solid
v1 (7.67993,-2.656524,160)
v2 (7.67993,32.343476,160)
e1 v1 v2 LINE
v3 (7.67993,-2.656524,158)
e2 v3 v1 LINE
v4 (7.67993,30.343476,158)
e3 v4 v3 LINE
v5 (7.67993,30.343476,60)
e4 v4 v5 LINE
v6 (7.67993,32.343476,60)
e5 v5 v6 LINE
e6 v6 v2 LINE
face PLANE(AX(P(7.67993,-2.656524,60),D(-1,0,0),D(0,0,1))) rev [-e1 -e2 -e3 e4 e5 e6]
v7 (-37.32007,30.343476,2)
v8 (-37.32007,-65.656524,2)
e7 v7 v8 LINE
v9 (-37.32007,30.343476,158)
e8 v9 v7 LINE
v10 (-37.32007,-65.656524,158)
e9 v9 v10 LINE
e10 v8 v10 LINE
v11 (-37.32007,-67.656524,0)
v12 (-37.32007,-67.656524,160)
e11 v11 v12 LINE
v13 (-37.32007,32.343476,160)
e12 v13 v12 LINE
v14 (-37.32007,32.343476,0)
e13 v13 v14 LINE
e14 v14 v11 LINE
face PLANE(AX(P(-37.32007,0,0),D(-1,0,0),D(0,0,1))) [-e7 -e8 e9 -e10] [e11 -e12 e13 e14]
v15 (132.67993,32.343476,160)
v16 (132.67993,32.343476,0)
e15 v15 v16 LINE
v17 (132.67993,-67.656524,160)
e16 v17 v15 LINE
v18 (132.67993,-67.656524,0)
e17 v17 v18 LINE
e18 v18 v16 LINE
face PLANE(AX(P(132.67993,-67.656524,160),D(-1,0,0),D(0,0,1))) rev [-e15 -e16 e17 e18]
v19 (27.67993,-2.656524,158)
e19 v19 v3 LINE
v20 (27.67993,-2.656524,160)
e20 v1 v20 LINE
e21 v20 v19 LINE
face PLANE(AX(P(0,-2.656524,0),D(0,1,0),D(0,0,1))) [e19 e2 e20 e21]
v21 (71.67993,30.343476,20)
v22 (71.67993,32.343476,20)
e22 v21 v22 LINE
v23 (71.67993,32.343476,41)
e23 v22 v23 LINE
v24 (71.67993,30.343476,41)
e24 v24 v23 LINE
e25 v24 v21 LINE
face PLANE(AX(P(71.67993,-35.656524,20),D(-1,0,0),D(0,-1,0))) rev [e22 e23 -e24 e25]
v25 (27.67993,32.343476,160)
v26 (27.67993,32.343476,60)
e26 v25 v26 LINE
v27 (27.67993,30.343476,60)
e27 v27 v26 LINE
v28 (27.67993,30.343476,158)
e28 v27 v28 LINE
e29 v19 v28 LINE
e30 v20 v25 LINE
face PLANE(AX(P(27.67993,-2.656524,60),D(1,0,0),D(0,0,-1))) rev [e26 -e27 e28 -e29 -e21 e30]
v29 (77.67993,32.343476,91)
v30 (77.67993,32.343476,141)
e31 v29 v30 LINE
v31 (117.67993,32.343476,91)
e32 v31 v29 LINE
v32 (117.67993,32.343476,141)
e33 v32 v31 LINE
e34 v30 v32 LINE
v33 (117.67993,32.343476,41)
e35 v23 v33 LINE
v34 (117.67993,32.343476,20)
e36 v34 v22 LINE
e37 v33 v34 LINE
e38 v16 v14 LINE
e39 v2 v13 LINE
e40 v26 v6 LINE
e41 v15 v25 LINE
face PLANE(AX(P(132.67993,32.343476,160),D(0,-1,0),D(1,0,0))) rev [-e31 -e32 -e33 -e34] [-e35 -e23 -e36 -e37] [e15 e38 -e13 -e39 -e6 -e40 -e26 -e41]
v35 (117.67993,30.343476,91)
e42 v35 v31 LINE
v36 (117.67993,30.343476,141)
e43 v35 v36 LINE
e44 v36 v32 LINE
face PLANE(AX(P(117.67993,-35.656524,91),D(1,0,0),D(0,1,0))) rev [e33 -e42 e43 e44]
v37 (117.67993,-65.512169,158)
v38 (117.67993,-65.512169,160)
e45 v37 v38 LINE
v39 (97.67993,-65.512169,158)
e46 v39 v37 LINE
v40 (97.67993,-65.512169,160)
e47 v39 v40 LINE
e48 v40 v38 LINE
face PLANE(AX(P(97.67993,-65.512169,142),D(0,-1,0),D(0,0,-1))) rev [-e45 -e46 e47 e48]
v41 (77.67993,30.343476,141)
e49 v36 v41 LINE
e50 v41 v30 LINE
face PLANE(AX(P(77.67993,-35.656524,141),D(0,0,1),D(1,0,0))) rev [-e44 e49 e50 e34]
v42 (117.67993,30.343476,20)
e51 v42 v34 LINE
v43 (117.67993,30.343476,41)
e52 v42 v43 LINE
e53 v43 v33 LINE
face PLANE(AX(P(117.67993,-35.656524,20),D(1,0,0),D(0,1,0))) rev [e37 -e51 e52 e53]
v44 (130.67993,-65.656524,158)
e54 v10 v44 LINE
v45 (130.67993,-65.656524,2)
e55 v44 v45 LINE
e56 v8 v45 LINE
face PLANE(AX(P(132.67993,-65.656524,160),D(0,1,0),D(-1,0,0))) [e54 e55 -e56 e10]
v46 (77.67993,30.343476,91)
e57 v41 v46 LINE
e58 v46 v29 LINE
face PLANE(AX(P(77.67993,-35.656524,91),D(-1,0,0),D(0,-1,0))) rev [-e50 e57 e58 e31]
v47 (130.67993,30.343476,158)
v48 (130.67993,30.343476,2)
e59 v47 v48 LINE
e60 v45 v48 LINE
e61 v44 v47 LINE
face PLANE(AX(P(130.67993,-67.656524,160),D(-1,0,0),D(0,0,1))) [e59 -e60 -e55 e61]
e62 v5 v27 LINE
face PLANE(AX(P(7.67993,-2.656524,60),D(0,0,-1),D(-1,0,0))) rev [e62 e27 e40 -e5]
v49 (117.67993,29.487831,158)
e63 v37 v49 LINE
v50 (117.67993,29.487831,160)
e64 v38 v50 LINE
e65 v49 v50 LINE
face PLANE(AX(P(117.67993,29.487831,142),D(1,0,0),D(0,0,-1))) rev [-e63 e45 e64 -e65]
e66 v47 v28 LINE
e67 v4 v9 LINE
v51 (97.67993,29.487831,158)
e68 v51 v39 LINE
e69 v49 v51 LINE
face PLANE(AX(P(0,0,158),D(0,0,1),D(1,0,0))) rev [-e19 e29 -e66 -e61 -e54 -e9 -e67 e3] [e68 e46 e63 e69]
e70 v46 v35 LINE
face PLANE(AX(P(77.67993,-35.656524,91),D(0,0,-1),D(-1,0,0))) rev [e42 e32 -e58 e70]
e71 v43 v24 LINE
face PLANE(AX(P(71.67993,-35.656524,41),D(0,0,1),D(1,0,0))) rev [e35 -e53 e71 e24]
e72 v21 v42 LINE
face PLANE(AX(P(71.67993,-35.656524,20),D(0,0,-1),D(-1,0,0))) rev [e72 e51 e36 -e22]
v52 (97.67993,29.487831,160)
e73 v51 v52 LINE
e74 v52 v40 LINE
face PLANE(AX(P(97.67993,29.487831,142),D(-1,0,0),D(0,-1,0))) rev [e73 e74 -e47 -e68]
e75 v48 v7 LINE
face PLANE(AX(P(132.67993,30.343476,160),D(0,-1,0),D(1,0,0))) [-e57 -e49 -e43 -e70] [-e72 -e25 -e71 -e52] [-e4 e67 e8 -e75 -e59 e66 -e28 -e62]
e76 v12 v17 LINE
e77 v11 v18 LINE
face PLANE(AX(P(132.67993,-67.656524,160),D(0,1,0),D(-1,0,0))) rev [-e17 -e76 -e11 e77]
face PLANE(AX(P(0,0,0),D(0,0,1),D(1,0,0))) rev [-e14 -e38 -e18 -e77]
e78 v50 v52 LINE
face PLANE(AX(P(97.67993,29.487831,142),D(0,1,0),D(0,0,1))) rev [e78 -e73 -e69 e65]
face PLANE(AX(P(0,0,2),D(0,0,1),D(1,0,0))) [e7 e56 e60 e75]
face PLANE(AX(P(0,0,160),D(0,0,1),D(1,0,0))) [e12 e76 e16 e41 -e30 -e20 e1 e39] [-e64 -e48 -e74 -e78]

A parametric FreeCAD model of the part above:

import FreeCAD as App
import Part
import Sketcher
from FreeCAD import Vector


def faces_at(feature, points):
    """Names of the faces that lie closest to the given points."""
    faces = feature.Shape.Faces
    near = lambda p: min(range(len(faces)), key=lambda i: faces[i].distToShape(Part.Vertex(*p))[0])
    return sorted({f"Face{near(p) + 1}" for p in points})


def add_polygon(sketch, points):
    """Adds a closed chain of lines whose ends are joined by coincident constraints."""
    first, n = sketch.GeometryCount, len(points)
    for a, b in zip(points, points[1:] + points[:1]):
        sketch.addGeometry(Part.LineSegment(App.Vector(*a, 0), App.Vector(*b, 0)), False)
    for i in range(n):
        sketch.addConstraint(Sketcher.Constraint("Coincident", first + i, 2, first + (i + 1) % n, 1))

doc = App.newDocument("Part")
params = doc.addObject("Spreadsheet::Sheet", "Params")
for row, (alias, value) in enumerate([
    ("sketch1_width", "200 mm"),
    ("sketch1_height", "100 mm"),
    ("pad1_length", "160 mm"),
    ("thickness_wall", "2 mm"),
    ("sketch2_width", "46 mm"),
    ("sketch2_width2", "40 mm"),
    ("sketch2_height", "21 mm"),
    ("sketch2_height2", "50 mm"),
    ("pocket1_length", "68 mm"),
    ("sketch3_width", "20 mm"),
    ("sketch3_height", "95 mm"),
    ("pocket2_length", "18 mm"),
    ("sketch4_width", "20 mm"),
    ("sketch4_height", "100 mm"),
    ("pocket3_length", "35 mm"),
    ("pocket4_length", "30 mm"),
], start=1):
    params.set(f"A{row}", alias)
    params.set(f"B{row}", "=" + value)
    params.setAlias(f"B{row}", alias)

body = doc.addObject("PartDesign::Body", "Body")

sketch1 = body.newObject("Sketcher::SketchObject", "Sketch")
sketch1.AttachmentSupport = (doc.getObject("XY_Plane"), [""])
sketch1.MapMode = "FlatFace"
add_polygon(sketch1, [(-67.32007, 32.343476), (-67.32007, -67.656524), (132.67993, -67.656524), (132.67993, 32.343476)])
sketch1.addConstraint(Sketcher.Constraint("Vertical", 0))
sketch1.addConstraint(Sketcher.Constraint("Horizontal", 1))
sketch1.addConstraint(Sketcher.Constraint("Vertical", 2))
sketch1.addConstraint(Sketcher.Constraint("Horizontal", 3))
sketch1.addConstraint(Sketcher.Constraint("DistanceX", 1, 1, 1, 2, 200.0))
sketch1.addConstraint(Sketcher.Constraint("DistanceY", 0, 2, 0, 1, 100.0))
sketch1.addConstraint(Sketcher.Constraint("DistanceX", 0, 2, -1, 1, 67.32007))
sketch1.addConstraint(Sketcher.Constraint("DistanceY", 0, 2, -1, 1, 67.656524))
sketch1.setExpression("Constraints[8]", "Params.sketch1_width")
sketch1.setExpression("Constraints[9]", "Params.sketch1_height")
pad1 = body.newObject("PartDesign::Pad", "Pad")
pad1.Profile = sketch1
pad1.setExpression("Length", "Params.pad1_length")
doc.recompute()

thickness = body.newObject("PartDesign::Thickness", "Thickness")
thickness.Base = (pad1, faces_at(pad1, [(-67.32, -17.657, 80)]))
thickness.setExpression("Value", "Params.thickness_wall")
thickness.Reversed = True
thickness.Join = "Intersection"

sketch2 = body.newObject("Sketcher::SketchObject", "Sketch001")
sketch2.AttachmentSupport = (doc.getObject("XZ_Plane"), [""])
sketch2.MapMode = "FlatFace"
sketch2.AttachmentOffset = App.Placement(Vector(0, 0, -32.343476), App.Rotation())
add_polygon(sketch2, [(71.67993, 20), (71.67993, 41), (117.67993, 41), (117.67993, 20)])
add_polygon(sketch2, [(77.67993, 91), (77.67993, 141), (117.67993, 141), (117.67993, 91)])
sketch2.addConstraint(Sketcher.Constraint("Vertical", 0))
sketch2.addConstraint(Sketcher.Constraint("Horizontal", 1))
sketch2.addConstraint(Sketcher.Constraint("Vertical", 2))
sketch2.addConstraint(Sketcher.Constraint("Horizontal", 3))
sketch2.addConstraint(Sketcher.Constraint("Vertical", 4))
sketch2.addConstraint(Sketcher.Constraint("Horizontal", 5))
sketch2.addConstraint(Sketcher.Constraint("Vertical", 6))
sketch2.addConstraint(Sketcher.Constraint("Horizontal", 7))
sketch2.addConstraint(Sketcher.Constraint("Vertical", 2, 2, 5, 2))
sketch2.addConstraint(Sketcher.Constraint("DistanceX", 1, 1, 1, 2, 46.0))
sketch2.addConstraint(Sketcher.Constraint("DistanceX", 5, 1, 5, 2, 40.0))
sketch2.addConstraint(Sketcher.Constraint("DistanceY", 0, 1, 0, 2, 21.0))
sketch2.addConstraint(Sketcher.Constraint("DistanceY", 4, 1, 4, 2, 50.0))
sketch2.addConstraint(Sketcher.Constraint("DistanceY", -1, 1, 0, 2, 41.0))
sketch2.addConstraint(Sketcher.Constraint("DistanceY", -1, 1, 4, 2, 141.0))
sketch2.addConstraint(Sketcher.Constraint("DistanceX", -1, 1, 0, 2, 71.67993))
sketch2.setExpression("Constraints[17]", "Params.sketch2_width")
sketch2.setExpression("Constraints[18]", "Params.sketch2_width2")
sketch2.setExpression("Constraints[19]", "Params.sketch2_height")
sketch2.setExpression("Constraints[20]", "Params.sketch2_height2")
pocket1 = body.newObject("PartDesign::Pocket", "Pocket")
pocket1.Profile = sketch2
pocket1.setExpression("Length", "Params.pocket1_length")
pocket1.Reversed = True

sketch3 = body.newObject("Sketcher::SketchObject", "Sketch002")
sketch3.AttachmentSupport = (doc.getObject("XY_Plane"), [""])
sketch3.MapMode = "FlatFace"
sketch3.AttachmentOffset = App.Placement(Vector(0, 0, 160), App.Rotation())
add_polygon(sketch3, [(97.67993, 29.487831), (97.67993, -65.512169), (117.67993, -65.512169), (117.67993, 29.487831)])
sketch3.addConstraint(Sketcher.Constraint("Vertical", 0))
sketch3.addConstraint(Sketcher.Constraint("Horizontal", 1))
sketch3.addConstraint(Sketcher.Constraint("Vertical", 2))
sketch3.addConstraint(Sketcher.Constraint("Horizontal", 3))
sketch3.addConstraint(Sketcher.Constraint("DistanceX", 1, 1, 1, 2, 20.0))
sketch3.addConstraint(Sketcher.Constraint("DistanceY", 0, 2, 0, 1, 95.0))
sketch3.addConstraint(Sketcher.Constraint("DistanceX", -1, 1, 0, 2, 97.67993))
sketch3.addConstraint(Sketcher.Constraint("DistanceY", 0, 2, -1, 1, 65.512169))
sketch3.setExpression("Constraints[8]", "Params.sketch3_width")
sketch3.setExpression("Constraints[9]", "Params.sketch3_height")
pocket2 = body.newObject("PartDesign::Pocket", "Pocket001")
pocket2.Profile = sketch3
pocket2.setExpression("Length", "Params.pocket2_length")

sketch4 = body.newObject("Sketcher::SketchObject", "Sketch003")
sketch4.AttachmentSupport = (doc.getObject("XZ_Plane"), [""])
sketch4.MapMode = "FlatFace"
sketch4.AttachmentOffset = App.Placement(Vector(0, 0, -32.343476), App.Rotation())
add_polygon(sketch4, [(7.67993, 60), (7.67993, 160), (27.67993, 160), (27.67993, 60)])
sketch4.addConstraint(Sketcher.Constraint("Vertical", 0))
sketch4.addConstraint(Sketcher.Constraint("Horizontal", 1))
sketch4.addConstraint(Sketcher.Constraint("Vertical", 2))
sketch4.addConstraint(Sketcher.Constraint("Horizontal", 3))
sketch4.addConstraint(Sketcher.Constraint("DistanceX", 1, 1, 1, 2, 20.0))
sketch4.addConstraint(Sketcher.Constraint("DistanceY", 0, 1, 0, 2, 100.0))
sketch4.addConstraint(Sketcher.Constraint("DistanceY", -1, 1, 0, 2, 160.0))
sketch4.addConstraint(Sketcher.Constraint("DistanceX", -1, 1, 0, 2, 7.67993))
sketch4.setExpression("Constraints[8]", "Params.sketch4_width")
sketch4.setExpression("Constraints[9]", "Params.sketch4_height")
pocket3 = body.newObject("PartDesign::Pocket", "Pocket002")
pocket3.Profile = sketch4
pocket3.setExpression("Length", "Params.pocket3_length")
pocket3.Reversed = True

sketch5 = body.newObject("Sketcher::SketchObject", "Sketch004")
sketch5.AttachmentSupport = (doc.getObject("YZ_Plane"), [""])
sketch5.MapMode = "FlatFace"
sketch5.AttachmentOffset = App.Placement(Vector(0, 0, -67.32007), App.Rotation())
add_polygon(sketch5, [(34.538964, -4.594808), (-70.835673, -4.594808), (-70.835673, 163.242275), (34.538964, 163.242275)])
sketch5.addConstraint(Sketcher.Constraint("Horizontal", 0))
sketch5.addConstraint(Sketcher.Constraint("Vertical", 1))
sketch5.addConstraint(Sketcher.Constraint("Horizontal", 2))
sketch5.addConstraint(Sketcher.Constraint("Vertical", 3))
sketch5.addConstraint(Sketcher.Constraint("DistanceX", 0, 2, 0, 1, 105.374637))
sketch5.addConstraint(Sketcher.Constraint("DistanceY", 1, 1, 1, 2, 167.837083))
sketch5.addConstraint(Sketcher.Constraint("DistanceY", 0, 2, -1, 1, 4.594808))
sketch5.addConstraint(Sketcher.Constraint("DistanceX", 0, 2, -1, 1, 70.835673))
pocket4 = body.newObject("PartDesign::Pocket", "Pocket003")
pocket4.Profile = sketch5
pocket4.setExpression("Length", "Params.pocket4_length")
pocket4.Reversed = True

doc.recompute()
